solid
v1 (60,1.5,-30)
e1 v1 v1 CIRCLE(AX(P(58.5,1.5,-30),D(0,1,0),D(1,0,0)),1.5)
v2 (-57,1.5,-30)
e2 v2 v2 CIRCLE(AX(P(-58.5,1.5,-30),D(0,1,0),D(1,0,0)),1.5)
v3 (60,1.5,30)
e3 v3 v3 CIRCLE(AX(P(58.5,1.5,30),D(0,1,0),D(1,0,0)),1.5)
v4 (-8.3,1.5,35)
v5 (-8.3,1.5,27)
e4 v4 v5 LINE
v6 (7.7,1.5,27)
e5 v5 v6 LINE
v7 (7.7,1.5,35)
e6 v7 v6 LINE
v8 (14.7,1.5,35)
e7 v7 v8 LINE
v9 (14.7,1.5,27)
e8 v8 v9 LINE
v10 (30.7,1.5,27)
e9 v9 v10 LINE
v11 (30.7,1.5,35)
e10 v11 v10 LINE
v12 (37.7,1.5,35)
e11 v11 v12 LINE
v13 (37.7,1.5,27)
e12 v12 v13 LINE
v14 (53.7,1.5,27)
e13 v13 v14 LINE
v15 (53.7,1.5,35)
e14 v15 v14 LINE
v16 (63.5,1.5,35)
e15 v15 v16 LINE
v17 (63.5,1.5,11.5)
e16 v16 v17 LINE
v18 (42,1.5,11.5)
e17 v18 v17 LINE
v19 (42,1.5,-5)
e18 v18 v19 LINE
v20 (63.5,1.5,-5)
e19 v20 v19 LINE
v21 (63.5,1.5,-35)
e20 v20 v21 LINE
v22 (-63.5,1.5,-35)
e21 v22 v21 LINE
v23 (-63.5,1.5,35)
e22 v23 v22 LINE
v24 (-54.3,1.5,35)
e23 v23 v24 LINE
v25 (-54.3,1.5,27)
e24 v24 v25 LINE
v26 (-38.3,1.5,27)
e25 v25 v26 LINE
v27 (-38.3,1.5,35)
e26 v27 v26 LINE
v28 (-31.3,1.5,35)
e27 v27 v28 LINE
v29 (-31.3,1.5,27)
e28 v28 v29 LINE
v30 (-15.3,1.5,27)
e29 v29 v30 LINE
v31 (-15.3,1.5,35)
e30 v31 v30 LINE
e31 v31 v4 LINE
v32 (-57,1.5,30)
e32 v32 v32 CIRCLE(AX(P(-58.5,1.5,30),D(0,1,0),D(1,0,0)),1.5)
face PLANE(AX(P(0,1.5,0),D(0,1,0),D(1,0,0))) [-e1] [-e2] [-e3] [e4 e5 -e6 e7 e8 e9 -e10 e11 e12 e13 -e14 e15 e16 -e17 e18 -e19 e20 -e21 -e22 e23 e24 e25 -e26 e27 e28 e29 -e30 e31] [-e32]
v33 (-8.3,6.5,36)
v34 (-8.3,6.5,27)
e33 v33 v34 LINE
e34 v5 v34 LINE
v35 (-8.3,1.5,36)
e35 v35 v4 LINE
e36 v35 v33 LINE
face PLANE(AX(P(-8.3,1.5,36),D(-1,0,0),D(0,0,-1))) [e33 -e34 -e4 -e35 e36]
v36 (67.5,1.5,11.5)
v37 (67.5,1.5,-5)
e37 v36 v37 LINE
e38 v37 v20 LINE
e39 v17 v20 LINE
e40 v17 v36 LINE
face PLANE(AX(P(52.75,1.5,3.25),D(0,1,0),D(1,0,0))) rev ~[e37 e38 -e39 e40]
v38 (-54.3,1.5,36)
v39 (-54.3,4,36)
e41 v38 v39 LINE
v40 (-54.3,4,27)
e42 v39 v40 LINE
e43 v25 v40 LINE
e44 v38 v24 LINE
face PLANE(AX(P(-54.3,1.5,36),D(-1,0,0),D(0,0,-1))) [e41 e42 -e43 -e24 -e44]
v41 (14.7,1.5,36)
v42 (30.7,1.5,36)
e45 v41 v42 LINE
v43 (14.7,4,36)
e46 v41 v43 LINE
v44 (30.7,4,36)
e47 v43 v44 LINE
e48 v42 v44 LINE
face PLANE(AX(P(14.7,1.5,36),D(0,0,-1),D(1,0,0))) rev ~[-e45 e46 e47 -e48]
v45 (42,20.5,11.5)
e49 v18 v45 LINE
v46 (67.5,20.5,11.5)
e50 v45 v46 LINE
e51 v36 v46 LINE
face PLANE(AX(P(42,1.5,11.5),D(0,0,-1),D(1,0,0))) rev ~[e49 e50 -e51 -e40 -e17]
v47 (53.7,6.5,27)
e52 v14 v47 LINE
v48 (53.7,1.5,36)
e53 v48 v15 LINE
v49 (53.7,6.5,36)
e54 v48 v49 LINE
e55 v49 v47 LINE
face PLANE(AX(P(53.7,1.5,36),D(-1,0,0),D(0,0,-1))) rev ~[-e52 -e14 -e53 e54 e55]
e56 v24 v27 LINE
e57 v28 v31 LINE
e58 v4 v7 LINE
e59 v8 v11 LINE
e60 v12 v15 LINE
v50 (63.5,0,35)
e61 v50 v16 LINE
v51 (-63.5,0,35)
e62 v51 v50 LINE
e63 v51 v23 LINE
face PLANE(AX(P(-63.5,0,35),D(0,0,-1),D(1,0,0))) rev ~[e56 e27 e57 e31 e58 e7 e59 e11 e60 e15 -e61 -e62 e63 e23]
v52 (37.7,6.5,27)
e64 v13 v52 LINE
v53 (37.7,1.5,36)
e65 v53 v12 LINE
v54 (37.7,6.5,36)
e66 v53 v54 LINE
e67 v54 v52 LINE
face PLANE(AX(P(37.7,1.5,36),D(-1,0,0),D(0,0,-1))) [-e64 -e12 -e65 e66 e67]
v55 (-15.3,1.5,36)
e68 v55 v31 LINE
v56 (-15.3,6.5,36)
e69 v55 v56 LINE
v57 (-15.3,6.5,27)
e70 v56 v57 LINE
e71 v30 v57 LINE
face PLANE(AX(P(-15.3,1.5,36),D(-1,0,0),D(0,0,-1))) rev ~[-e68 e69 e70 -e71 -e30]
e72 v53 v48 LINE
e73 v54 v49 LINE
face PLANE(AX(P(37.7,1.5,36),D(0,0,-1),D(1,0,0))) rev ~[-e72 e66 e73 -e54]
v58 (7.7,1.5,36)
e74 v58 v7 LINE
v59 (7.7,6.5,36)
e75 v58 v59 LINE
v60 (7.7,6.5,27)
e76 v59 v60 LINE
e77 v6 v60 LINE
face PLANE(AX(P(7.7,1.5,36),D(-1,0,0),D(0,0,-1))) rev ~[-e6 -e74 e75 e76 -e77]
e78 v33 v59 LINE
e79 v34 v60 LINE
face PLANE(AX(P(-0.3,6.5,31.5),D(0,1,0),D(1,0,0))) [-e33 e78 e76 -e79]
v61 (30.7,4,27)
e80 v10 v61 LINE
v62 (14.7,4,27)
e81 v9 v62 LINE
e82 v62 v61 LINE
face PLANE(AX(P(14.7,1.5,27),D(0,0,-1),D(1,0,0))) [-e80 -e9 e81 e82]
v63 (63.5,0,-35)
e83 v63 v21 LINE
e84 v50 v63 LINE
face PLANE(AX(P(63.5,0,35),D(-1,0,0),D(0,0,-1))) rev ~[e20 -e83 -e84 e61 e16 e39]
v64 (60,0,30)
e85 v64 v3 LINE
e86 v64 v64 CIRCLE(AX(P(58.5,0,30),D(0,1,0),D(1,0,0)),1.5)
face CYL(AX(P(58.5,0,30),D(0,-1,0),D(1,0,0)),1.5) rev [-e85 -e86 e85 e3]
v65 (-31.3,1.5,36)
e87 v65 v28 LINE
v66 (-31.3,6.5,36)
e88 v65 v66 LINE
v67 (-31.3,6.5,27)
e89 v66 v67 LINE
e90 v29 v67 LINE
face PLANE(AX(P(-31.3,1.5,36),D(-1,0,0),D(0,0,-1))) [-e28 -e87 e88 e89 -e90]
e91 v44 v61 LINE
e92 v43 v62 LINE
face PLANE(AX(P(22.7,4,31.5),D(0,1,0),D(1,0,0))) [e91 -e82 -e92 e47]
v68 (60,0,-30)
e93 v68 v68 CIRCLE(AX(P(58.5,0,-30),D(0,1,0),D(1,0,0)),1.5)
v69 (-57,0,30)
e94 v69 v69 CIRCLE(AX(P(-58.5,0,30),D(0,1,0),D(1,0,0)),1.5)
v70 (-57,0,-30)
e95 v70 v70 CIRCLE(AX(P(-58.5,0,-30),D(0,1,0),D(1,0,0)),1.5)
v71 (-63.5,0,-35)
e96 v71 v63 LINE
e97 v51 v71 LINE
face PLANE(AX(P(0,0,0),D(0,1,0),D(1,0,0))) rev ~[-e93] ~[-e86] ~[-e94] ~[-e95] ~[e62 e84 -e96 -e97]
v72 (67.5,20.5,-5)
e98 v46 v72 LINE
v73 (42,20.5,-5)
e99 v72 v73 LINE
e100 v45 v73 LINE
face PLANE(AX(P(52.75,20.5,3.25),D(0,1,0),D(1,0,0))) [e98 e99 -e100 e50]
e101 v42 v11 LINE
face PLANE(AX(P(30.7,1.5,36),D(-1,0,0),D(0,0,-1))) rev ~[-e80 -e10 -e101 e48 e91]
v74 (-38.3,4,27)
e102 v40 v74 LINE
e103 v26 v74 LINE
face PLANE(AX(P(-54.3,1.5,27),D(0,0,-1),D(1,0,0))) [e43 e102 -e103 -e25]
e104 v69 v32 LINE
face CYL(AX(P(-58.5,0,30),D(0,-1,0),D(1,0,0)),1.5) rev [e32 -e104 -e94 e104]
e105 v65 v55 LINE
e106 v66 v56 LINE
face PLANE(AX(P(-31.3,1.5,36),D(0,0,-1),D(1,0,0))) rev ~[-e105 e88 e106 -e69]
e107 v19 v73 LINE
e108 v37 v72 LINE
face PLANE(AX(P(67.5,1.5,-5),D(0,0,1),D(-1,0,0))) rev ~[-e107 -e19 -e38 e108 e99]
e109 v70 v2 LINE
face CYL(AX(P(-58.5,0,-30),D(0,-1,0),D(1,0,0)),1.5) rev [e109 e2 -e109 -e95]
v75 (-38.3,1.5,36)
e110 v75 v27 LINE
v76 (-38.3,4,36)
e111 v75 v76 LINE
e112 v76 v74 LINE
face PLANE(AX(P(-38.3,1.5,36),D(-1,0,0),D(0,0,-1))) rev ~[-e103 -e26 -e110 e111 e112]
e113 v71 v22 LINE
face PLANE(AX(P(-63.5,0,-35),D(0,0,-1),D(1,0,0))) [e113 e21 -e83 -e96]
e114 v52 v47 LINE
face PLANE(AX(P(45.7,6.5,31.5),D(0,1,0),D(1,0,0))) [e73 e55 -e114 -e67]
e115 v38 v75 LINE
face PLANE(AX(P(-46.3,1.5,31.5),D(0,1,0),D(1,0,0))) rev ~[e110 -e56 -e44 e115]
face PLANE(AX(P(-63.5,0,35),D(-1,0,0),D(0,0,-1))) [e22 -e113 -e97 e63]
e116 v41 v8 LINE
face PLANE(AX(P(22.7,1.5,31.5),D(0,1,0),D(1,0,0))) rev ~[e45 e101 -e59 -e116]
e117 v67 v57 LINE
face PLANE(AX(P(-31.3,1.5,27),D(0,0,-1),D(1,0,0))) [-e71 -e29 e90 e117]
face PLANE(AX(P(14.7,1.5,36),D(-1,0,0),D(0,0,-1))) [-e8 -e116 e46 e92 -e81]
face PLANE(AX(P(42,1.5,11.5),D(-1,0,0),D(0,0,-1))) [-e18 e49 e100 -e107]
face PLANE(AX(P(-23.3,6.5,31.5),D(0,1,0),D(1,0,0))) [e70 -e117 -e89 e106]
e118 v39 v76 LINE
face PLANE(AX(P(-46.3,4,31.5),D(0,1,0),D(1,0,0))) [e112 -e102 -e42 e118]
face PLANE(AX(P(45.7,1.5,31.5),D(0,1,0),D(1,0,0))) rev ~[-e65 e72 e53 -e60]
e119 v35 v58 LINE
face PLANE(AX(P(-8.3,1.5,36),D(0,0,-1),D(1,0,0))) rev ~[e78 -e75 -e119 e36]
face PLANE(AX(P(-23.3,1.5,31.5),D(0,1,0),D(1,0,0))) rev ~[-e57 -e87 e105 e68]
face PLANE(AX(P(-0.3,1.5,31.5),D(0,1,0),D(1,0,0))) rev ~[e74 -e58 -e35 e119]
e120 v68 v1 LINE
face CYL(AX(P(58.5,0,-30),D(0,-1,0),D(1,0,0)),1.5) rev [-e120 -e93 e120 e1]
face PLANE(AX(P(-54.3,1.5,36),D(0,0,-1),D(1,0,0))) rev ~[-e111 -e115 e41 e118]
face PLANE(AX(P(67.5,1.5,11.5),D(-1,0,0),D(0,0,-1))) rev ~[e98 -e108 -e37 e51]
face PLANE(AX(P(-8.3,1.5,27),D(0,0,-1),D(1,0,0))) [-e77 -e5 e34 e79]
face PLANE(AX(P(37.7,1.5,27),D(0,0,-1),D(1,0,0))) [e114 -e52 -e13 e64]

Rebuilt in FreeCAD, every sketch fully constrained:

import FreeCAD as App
import Part
import Sketcher
from FreeCAD import Vector
Q = App.Units.Quantity


def add_polygon(sketch, points):
    """Adds a closed chain of lines whose ends are joined by coincident constraints."""
    first, n = sketch.GeometryCount, len(points)
    for a, b in zip(points, points[1:] + points[:1]):
        sketch.addGeometry(Part.LineSegment(App.Vector(*a, 0), App.Vector(*b, 0)), False)
    for i in range(n):
        sketch.addConstraint(Sketcher.Constraint("Coincident", first + i, 2, first + (i + 1) % n, 1))

doc = App.newDocument("Part")
params = doc.addObject("Spreadsheet::Sheet", "Params")
for row, (alias, value) in enumerate([
    ("sketch1_diameter", "3 mm"),
    ("sketch1_width", "127 mm"),
    ("sketch1_height", "70 mm"),
    ("pad1_length", "1.5 mm"),
    ("sketch2_width", "16 mm"),
    ("sketch2_height", "9 mm"),
    ("pad2_length", "2.5 mm"),
    ("sketch3_width", "16 mm"),
    ("sketch3_height", "9 mm"),
    ("pad3_length", "5 mm"),
    ("sketch4_width", "25.5 mm"),
    ("sketch4_height", "16.5 mm"),
    ("pad4_length", "19 mm"),
], start=1):
    params.set(f"A{row}", alias)
    params.set(f"B{row}", "=" + value)
    params.setAlias(f"B{row}", alias)

body = doc.addObject("PartDesign::Body", "Body")

# Sketch on XZ plane
sketch1 = body.newObject("Sketcher::SketchObject", "Sketch")
sketch1.AttachmentSupport = (doc.getObject("XZ_Plane"), [""])
sketch1.MapMode = "FlatFace"
add_polygon(sketch1, [(-63.5, -35), (-63.5, 35), (63.5, 35), (63.5, -35)])  # lines 0-3
sketch1.addGeometry(Part.Circle(Vector(-58.5, 30, 0), Vector(0, 0, 1), 1.5), False)  # 4
sketch1.addGeometry(Part.Circle(Vector(58.5, 30, 0), Vector(0, 0, 1), 1.5), False)  # 5
sketch1.addGeometry(Part.Circle(Vector(-58.5, -30, 0), Vector(0, 0, 1), 1.5), False)  # 6
sketch1.addGeometry(Part.Circle(Vector(58.5, -30, 0), Vector(0, 0, 1), 1.5), False)  # 7
sketch1.addConstraint([
    Sketcher.Constraint("Vertical", 0),
    Sketcher.Constraint("Horizontal", 1),
    Sketcher.Constraint("Vertical", 2),
    Sketcher.Constraint("Horizontal", 3),
    Sketcher.Constraint("Equal", 4, 5),
    Sketcher.Constraint("Equal", 5, 6),
    Sketcher.Constraint("Equal", 6, 7),
    Sketcher.Constraint("Symmetric", 5, 3, 6, 3, -1, 1),
    Sketcher.Constraint("Symmetric", 4, 3, 7, 3, -1, 1),
    Sketcher.Constraint("Symmetric", 0, 2, 2, 2, -1, 1),
    Sketcher.Constraint("Symmetric", 4, 3, 5, 3, -2),
    Sketcher.Constraint("Diameter", 4, Q("3 mm")),
    Sketcher.Constraint("DistanceX", 1, 1, 1, 2, Q("127 mm")),
    Sketcher.Constraint("DistanceY", 0, 1, 0, 2, Q("70 mm")),
    Sketcher.Constraint("DistanceY", -1, 1, 4, 3, Q("30 mm")),
    Sketcher.Constraint("DistanceX", 4, 3, 5, 3, Q("117 mm")),
])
sketch1.setExpression("Constraints[15]", "Params.sketch1_diameter")
sketch1.setExpression("Constraints[16]", "Params.sketch1_width")
sketch1.setExpression("Constraints[17]", "Params.sketch1_height")
pad1 = body.newObject("PartDesign::Pad", "Pad")
pad1.Profile = sketch1
pad1.setExpression("Length", "Params.pad1_length")
pad1.Reversed = True

# Sketch on XZ plane
sketch2 = body.newObject("Sketcher::SketchObject", "Sketch001")
sketch2.AttachmentSupport = (doc.getObject("XZ_Plane"), [""])
sketch2.MapMode = "FlatFace"
sketch2.AttachmentOffset = App.Placement(Vector(0, 0, -1.5), App.Rotation())
add_polygon(sketch2, [(-54, 27), (-54, 36), (-38, 36), (-38, 27)])  # lines 0-3
add_polygon(sketch2, [(15, 27), (15, 36), (31, 36), (31, 27)])  # lines 4-7
sketch2.addConstraint([
    Sketcher.Constraint("Vertical", 0),
    Sketcher.Constraint("Horizontal", 1),
    Sketcher.Constraint("Vertical", 2),
    Sketcher.Constraint("Horizontal", 3),
    Sketcher.Constraint("Vertical", 4),
    Sketcher.Constraint("Horizontal", 5),
    Sketcher.Constraint("Vertical", 6),
    Sketcher.Constraint("Horizontal", 7),
    Sketcher.Constraint("Horizontal", 1, 2, 4, 2),
    Sketcher.Constraint("Horizontal", 3, 2, 6, 2),
    Sketcher.Constraint("Equal", 3, 5),
    Sketcher.Constraint("DistanceX", 1, 1, 1, 2, Q("16 mm")),
    Sketcher.Constraint("DistanceY", 0, 1, 0, 2, Q("9 mm")),
    Sketcher.Constraint("DistanceY", -1, 1, 0, 2, Q("36 mm")),
    Sketcher.Constraint("DistanceX", 1, 2, 4, 2, Q("53 mm")),
    Sketcher.Constraint("DistanceX", 0, 2, -1, 1, Q("54.3 mm")),
])
sketch2.setExpression("Constraints[19]", "Params.sketch2_width")
sketch2.setExpression("Constraints[20]", "Params.sketch2_height")
pad2 = body.newObject("PartDesign::Pad", "Pad001")
pad2.Profile = sketch2
pad2.setExpression("Length", "Params.pad2_length")
pad2.Reversed = True

# Sketch on XZ plane
sketch3 = body.newObject("Sketcher::SketchObject", "Sketch002")
sketch3.AttachmentSupport = (doc.getObject("XZ_Plane"), [""])
sketch3.MapMode = "FlatFace"
sketch3.AttachmentOffset = App.Placement(Vector(0, 0, -1.5), App.Rotation())
add_polygon(sketch3, [(-31, 27), (-31, 36), (-15, 36), (-15, 27)])  # lines 0-3
add_polygon(sketch3, [(-8, 27), (-8, 36), (8, 36), (8, 27)])  # lines 4-7
add_polygon(sketch3, [(38, 27), (38, 36), (54, 36), (54, 27)])  # lines 8-11
sketch3.addConstraint([
    Sketcher.Constraint("Vertical", 0),
    Sketcher.Constraint("Horizontal", 1),
    Sketcher.Constraint("Vertical", 2),
    Sketcher.Constraint("Horizontal", 3),
    Sketcher.Constraint("Vertical", 4),
    Sketcher.Constraint("Horizontal", 5),
    Sketcher.Constraint("Vertical", 6),
    Sketcher.Constraint("Horizontal", 7),
    Sketcher.Constraint("Vertical", 8),
    Sketcher.Constraint("Horizontal", 9),
    Sketcher.Constraint("Vertical", 10),
    Sketcher.Constraint("Horizontal", 11),
    Sketcher.Constraint("Horizontal", 1, 2, 4, 2),
    Sketcher.Constraint("Horizontal", 3, 2, 6, 2),
    Sketcher.Constraint("Horizontal", 5, 2, 8, 2),
    Sketcher.Constraint("Horizontal", 7, 2, 10, 2),
    Sketcher.Constraint("Equal", 3, 5),
    Sketcher.Constraint("Equal", 7, 9),
    Sketcher.Constraint("DistanceX", 1, 1, 1, 2, Q("16 mm")),
    Sketcher.Constraint("DistanceY", 0, 1, 0, 2, Q("9 mm")),
    Sketcher.Constraint("DistanceY", -1, 1, 0, 2, Q("36 mm")),
    Sketcher.Constraint("DistanceX", 1, 2, 4, 2, Q("7 mm")),
    Sketcher.Constraint("DistanceX", 5, 2, 8, 2, Q("30 mm")),
    Sketcher.Constraint("DistanceX", 0, 2, -1, 1, Q("31.3 mm")),
])
sketch3.setExpression("Constraints[30]", "Params.sketch3_width")
sketch3.setExpression("Constraints[31]", "Params.sketch3_height")
pad3 = body.newObject("PartDesign::Pad", "Pad002")
pad3.Profile = sketch3
pad3.setExpression("Length", "Params.pad3_length")
pad3.Reversed = True

# Sketch on XZ plane
sketch4 = body.newObject("Sketcher::SketchObject", "Sketch003")
sketch4.AttachmentSupport = (doc.getObject("XZ_Plane"), [""])
sketch4.MapMode = "FlatFace"
sketch4.AttachmentOffset = App.Placement(Vector(0, 0, -1.5), App.Rotation())
add_polygon(sketch4, [(42, -5), (42, 12), (68, 12), (68, -5)])  # lines 0-3
sketch4.addConstraint([
    Sketcher.Constraint("Vertical", 0),
    Sketcher.Constraint("Horizontal", 1),
    Sketcher.Constraint("Vertical", 2),
    Sketcher.Constraint("Horizontal", 3),
    Sketcher.Constraint("DistanceX", 1, 1, 1, 2, Q("25.5 mm")),
    Sketcher.Constraint("DistanceY", 0, 1, 0, 2, Q("16.5 mm")),
    Sketcher.Constraint("DistanceX", -1, 1, 0, 2, Q("42 mm")),
    Sketcher.Constraint("DistanceY", 2, 2, -1, 1, Q("5 mm")),
])
sketch4.setExpression("Constraints[8]", "Params.sketch4_width")
sketch4.setExpression("Constraints[9]", "Params.sketch4_height")
pad4 = body.newObject("PartDesign::Pad", "Pad003")
pad4.Profile = sketch4
pad4.setExpression("Length", "Params.pad4_length")
pad4.Reversed = True

doc.recompute()
